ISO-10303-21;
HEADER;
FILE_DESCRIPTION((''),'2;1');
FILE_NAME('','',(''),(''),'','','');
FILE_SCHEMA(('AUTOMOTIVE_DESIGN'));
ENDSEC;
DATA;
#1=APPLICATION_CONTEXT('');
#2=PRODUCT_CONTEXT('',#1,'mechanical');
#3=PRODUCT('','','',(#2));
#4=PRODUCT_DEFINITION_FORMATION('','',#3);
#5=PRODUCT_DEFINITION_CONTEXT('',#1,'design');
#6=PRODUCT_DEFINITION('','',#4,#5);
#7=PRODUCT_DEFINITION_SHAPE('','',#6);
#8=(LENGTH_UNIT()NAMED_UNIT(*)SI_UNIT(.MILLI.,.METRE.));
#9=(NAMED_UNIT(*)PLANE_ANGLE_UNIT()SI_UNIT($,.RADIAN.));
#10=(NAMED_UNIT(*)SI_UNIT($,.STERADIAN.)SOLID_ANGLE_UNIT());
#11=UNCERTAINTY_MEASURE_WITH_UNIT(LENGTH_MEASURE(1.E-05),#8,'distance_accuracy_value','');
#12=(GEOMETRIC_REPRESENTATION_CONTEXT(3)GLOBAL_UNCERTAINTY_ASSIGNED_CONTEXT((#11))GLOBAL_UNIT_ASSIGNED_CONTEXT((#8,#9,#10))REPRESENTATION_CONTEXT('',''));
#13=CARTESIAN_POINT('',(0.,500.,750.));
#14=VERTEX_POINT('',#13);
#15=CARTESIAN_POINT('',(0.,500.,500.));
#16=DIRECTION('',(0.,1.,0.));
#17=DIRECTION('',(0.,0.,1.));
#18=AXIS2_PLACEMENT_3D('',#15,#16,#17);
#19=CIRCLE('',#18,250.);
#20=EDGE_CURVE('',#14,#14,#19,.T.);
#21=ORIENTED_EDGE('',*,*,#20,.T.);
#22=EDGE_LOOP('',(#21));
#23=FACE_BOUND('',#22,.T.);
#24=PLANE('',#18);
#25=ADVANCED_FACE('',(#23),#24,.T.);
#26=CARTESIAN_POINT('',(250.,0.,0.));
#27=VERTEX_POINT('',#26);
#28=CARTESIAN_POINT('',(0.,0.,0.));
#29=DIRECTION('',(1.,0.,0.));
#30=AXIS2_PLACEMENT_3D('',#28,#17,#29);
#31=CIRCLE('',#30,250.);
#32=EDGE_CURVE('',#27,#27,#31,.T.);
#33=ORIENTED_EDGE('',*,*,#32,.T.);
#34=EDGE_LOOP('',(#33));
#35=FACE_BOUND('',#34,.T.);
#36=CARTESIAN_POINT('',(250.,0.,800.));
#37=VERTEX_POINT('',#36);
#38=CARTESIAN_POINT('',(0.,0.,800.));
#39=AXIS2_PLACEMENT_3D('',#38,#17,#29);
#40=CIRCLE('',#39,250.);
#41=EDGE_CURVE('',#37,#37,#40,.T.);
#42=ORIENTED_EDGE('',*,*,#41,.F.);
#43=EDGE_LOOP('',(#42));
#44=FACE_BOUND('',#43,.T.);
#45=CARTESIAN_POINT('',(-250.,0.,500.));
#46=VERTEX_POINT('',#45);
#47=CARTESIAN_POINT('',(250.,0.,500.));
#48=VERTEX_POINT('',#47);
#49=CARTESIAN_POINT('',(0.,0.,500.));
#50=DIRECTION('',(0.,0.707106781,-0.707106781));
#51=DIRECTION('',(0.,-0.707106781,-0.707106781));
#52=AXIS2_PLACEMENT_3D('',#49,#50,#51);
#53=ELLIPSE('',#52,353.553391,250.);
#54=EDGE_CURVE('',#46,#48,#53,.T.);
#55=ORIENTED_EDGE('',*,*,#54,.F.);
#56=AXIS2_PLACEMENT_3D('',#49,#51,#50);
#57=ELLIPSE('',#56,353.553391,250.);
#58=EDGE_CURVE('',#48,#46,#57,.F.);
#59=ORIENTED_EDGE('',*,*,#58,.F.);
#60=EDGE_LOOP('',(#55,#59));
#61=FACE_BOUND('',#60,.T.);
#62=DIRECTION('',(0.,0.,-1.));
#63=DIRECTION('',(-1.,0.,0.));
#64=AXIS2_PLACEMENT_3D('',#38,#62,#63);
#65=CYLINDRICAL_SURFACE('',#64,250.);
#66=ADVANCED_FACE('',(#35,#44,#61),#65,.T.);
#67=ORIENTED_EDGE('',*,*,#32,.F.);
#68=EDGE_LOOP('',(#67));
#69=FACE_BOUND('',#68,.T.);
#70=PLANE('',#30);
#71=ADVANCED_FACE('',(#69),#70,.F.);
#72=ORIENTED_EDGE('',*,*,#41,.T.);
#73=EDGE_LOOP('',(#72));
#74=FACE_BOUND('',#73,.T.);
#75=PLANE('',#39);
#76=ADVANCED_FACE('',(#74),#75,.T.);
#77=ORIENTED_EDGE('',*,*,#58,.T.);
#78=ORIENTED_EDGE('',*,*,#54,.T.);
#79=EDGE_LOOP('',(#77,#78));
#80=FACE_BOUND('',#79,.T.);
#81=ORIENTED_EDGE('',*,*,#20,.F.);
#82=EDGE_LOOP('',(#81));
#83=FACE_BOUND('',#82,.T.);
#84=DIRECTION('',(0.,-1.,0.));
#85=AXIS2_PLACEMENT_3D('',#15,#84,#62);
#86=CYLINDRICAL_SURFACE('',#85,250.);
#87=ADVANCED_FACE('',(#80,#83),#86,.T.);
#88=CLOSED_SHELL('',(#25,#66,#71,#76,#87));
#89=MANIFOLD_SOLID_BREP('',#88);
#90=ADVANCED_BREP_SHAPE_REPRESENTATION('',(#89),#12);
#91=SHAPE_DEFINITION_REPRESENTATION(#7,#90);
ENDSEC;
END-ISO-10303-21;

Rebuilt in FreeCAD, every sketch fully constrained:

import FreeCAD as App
import Part
import Sketcher
from FreeCAD import Vector

doc = App.newDocument("Part")
params = doc.addObject("Spreadsheet::Sheet", "Params")
for row, (alias, value) in enumerate([
    ("sketch1_diameter", "500 mm"),
    ("pad1_length", "800 mm"),
    ("sketch2_diameter", "500 mm"),
    ("pad2_length", "500 mm"),
], start=1):
    params.set(f"A{row}", alias)
    params.set(f"B{row}", "=" + value)
    params.setAlias(f"B{row}", alias)

body = doc.addObject("PartDesign::Body", "Body")

# Sketch on XY plane
sketch1 = body.newObject("Sketcher::SketchObject", "Sketch")
sketch1.AttachmentSupport = (doc.getObject("XY_Plane"), [""])
sketch1.MapMode = "FlatFace"
sketch1.addGeometry(Part.Circle(Vector(0, 0, 0), Vector(0, 0, 1), 250), False)
sketch1.addConstraint([
    Sketcher.Constraint("Coincident", 0, 3, -1, 1),
    Sketcher.Constraint("Diameter", 0, 500.0),
])
sketch1.setExpression("Constraints[1]", "Params.sketch1_diameter")
pad1 = body.newObject("PartDesign::Pad", "Pad")
pad1.Profile = sketch1
pad1.setExpression("Length", "Params.pad1_length")

# Sketch on XZ plane
sketch2 = body.newObject("Sketcher::SketchObject", "Sketch001")
sketch2.AttachmentSupport = (doc.getObject("XZ_Plane"), [""])
sketch2.MapMode = "FlatFace"
sketch2.addGeometry(Part.Circle(Vector(0, 500, 0), Vector(0, 0, 1), 250), False)
sketch2.addConstraint([
    Sketcher.Constraint("PointOnObject", 0, 3, -2),
    Sketcher.Constraint("Diameter", 0, 500.0),
    Sketcher.Constraint("DistanceY", -1, 1, 0, 3, 500.0),
])
sketch2.setExpression("Constraints[1]", "Params.sketch2_diameter")
pad2 = body.newObject("PartDesign::Pad", "Pad001")
pad2.Profile = sketch2
pad2.setExpression("Length", "Params.pad2_length")
pad2.Reversed = True

doc.recompute()
